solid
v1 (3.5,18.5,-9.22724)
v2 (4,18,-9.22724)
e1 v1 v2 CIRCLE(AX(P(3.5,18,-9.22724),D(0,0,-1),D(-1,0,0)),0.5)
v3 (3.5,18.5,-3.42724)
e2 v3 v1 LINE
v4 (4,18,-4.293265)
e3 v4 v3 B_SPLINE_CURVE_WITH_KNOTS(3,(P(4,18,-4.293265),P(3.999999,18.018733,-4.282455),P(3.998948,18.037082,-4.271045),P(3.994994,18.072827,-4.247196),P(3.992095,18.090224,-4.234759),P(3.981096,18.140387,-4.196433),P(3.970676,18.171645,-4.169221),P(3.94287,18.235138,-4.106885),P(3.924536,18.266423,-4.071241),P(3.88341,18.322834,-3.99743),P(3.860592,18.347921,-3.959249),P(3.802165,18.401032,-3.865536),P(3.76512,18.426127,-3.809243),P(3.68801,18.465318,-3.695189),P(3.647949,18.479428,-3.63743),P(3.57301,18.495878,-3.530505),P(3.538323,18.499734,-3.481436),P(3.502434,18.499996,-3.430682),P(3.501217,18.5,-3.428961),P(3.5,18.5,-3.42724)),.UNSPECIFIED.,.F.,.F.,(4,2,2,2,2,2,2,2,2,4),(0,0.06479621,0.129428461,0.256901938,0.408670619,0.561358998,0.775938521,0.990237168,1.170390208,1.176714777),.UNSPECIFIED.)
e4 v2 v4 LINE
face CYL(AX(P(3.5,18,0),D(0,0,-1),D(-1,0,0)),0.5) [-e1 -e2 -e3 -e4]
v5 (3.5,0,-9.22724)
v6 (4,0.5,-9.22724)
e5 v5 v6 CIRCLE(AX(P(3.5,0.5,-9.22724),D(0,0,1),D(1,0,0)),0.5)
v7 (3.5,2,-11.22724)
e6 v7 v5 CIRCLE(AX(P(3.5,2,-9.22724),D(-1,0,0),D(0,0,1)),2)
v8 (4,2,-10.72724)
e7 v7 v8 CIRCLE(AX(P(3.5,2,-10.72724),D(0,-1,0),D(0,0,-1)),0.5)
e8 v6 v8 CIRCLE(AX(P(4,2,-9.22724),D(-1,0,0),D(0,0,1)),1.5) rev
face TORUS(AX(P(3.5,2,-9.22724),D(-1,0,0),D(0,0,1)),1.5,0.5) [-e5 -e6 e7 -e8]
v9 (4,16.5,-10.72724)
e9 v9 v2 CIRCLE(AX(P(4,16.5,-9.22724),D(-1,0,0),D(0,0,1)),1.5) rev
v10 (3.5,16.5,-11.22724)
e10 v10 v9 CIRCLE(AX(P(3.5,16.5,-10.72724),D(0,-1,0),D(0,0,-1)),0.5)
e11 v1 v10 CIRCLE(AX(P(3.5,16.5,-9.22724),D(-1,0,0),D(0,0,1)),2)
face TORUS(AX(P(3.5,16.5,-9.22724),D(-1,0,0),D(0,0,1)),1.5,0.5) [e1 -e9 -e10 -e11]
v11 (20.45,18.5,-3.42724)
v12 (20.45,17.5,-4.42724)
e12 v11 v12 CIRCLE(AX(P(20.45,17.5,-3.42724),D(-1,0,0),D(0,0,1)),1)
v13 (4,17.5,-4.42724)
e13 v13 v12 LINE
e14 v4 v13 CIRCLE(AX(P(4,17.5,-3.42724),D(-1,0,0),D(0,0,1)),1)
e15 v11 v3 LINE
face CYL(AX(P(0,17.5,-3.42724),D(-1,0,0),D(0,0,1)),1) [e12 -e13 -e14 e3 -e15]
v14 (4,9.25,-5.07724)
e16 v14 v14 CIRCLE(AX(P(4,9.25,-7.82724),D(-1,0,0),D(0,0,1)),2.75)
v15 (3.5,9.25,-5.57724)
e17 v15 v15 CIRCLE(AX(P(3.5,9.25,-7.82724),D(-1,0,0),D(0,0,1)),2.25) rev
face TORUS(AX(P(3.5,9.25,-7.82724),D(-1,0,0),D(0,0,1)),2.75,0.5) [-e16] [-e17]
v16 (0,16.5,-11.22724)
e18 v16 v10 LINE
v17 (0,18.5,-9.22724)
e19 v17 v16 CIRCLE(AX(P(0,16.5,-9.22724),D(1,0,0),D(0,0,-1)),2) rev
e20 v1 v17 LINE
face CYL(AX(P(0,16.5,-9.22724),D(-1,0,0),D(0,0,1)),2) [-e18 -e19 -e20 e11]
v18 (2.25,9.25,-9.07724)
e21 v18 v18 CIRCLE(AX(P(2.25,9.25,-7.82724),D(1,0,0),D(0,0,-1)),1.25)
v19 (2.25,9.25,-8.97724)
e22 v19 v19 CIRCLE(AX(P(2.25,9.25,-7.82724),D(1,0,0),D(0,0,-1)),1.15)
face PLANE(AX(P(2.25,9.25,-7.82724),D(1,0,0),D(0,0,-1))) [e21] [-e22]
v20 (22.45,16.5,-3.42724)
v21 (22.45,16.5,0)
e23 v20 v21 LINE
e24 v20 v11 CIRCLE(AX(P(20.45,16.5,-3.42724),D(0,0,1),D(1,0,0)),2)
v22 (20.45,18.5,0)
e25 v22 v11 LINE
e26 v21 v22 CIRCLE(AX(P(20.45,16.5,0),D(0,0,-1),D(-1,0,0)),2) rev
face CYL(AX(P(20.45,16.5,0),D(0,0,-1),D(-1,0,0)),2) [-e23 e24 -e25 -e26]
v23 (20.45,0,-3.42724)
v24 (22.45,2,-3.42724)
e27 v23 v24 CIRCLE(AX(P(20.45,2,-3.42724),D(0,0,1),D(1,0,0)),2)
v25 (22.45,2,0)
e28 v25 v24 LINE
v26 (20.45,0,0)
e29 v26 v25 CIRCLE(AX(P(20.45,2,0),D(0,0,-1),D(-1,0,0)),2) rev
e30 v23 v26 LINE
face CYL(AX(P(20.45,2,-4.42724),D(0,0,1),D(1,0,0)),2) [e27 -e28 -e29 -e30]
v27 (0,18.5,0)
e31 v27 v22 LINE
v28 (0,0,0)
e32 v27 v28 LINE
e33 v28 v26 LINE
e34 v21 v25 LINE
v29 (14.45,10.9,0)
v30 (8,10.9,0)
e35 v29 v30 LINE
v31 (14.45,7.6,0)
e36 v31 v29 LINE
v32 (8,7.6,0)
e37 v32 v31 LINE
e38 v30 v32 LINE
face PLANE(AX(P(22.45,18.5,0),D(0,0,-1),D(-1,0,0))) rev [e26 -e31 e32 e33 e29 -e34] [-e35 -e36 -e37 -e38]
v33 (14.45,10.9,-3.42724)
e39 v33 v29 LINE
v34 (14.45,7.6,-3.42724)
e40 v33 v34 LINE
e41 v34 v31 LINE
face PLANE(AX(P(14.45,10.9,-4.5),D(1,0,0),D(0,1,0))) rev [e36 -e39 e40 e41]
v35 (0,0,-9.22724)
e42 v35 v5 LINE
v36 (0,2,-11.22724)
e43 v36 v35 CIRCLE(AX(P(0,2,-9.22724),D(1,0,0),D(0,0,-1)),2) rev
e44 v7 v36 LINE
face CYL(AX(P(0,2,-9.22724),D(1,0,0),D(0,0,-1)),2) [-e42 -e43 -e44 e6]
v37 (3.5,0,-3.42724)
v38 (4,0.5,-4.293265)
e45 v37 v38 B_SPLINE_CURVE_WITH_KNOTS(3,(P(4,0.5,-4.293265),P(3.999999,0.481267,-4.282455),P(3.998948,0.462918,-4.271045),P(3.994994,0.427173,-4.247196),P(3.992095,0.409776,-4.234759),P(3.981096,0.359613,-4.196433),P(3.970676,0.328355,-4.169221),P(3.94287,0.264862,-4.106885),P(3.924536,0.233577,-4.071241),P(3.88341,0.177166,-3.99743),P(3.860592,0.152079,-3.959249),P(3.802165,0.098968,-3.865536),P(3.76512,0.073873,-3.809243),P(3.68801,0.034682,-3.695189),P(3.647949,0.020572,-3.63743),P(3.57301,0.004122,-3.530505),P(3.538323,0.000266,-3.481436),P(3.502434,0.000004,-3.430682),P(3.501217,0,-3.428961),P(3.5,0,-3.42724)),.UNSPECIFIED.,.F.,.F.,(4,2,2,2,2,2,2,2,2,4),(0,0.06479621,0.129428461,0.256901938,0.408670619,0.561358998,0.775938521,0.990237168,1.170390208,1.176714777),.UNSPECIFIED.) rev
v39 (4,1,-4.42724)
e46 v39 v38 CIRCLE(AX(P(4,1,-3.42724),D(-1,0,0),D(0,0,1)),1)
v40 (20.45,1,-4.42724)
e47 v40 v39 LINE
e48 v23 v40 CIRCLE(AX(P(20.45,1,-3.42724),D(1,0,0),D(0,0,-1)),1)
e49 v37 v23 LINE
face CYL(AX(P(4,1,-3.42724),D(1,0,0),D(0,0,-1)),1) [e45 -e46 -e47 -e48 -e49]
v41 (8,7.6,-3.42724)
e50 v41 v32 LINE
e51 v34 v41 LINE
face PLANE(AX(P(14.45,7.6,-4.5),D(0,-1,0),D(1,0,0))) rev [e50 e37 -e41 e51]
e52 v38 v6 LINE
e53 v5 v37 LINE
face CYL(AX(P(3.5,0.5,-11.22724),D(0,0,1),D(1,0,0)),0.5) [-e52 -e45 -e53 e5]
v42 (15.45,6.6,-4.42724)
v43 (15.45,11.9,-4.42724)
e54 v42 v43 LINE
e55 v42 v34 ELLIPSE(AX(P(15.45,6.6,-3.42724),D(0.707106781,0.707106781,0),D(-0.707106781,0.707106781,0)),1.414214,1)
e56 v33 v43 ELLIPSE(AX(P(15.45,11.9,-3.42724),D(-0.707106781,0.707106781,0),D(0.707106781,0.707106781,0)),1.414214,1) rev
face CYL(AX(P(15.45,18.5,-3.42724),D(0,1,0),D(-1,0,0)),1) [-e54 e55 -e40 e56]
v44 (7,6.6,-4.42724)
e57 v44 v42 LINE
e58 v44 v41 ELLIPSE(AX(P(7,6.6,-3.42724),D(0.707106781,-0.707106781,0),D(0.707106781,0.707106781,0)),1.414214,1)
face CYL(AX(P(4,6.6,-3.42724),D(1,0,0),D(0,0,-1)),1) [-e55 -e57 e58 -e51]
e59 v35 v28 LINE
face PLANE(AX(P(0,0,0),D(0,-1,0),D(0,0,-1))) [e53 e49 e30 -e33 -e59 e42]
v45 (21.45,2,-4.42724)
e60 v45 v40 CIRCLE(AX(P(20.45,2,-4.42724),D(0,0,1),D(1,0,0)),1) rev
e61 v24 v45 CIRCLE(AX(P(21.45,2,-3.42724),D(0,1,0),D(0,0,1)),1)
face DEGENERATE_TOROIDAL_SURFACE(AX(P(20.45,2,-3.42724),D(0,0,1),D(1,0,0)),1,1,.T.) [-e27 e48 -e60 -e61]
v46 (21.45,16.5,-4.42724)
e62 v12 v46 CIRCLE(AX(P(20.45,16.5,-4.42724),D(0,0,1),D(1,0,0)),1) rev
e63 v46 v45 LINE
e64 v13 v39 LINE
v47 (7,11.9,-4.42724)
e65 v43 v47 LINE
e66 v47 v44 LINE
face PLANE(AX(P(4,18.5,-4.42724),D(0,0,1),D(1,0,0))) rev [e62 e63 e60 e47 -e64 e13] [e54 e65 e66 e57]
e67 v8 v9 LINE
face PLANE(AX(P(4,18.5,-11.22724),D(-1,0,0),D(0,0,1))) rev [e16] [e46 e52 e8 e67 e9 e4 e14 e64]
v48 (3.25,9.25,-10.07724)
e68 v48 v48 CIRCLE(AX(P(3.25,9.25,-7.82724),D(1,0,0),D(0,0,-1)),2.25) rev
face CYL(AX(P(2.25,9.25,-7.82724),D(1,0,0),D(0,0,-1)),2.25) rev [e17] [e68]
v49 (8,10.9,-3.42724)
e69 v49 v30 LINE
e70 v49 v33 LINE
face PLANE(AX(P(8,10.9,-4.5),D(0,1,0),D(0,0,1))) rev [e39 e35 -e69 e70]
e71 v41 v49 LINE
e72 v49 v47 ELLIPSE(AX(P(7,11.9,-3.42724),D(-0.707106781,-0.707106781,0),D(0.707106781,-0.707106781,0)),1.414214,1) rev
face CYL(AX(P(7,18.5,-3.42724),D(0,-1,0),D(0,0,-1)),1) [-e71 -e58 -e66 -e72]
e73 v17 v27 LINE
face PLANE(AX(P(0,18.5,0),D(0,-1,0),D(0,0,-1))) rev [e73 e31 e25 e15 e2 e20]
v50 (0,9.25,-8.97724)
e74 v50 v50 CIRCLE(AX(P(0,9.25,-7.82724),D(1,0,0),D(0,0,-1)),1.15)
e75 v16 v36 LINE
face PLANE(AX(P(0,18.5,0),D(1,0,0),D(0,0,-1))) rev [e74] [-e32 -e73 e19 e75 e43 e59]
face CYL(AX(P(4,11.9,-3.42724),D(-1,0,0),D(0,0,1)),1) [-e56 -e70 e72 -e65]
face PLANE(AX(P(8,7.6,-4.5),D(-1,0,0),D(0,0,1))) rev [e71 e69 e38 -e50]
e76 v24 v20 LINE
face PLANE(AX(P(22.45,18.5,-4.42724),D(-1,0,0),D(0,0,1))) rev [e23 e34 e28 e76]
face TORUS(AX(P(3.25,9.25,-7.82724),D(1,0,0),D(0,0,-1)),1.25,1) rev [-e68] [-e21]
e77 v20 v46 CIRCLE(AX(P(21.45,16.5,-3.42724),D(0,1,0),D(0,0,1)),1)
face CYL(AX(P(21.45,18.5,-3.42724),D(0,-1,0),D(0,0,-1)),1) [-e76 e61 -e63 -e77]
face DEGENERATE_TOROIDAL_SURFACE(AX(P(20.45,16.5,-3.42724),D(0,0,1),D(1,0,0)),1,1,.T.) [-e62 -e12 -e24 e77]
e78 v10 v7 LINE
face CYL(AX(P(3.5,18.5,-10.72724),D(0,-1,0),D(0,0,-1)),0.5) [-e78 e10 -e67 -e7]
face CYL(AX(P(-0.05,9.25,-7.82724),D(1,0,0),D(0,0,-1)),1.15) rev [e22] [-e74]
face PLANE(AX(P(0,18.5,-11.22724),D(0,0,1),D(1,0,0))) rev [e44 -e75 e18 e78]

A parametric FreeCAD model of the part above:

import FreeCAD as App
import Part
import Sketcher

V = App.Vector


def edges_at(feature, points):
    """Names of the edges that pass closest to the given points."""
    edges = feature.Shape.Edges
    near = lambda p: min(range(len(edges)), key=lambda i: edges[i].distToShape(Part.Vertex(*p))[0])
    return sorted({f"Edge{near(p) + 1}" for p in points})

doc = App.newDocument("Part")
body = doc.addObject("PartDesign::Body", "Body")

# Sketch on XZ plane
sketch1 = doc.addObject("Sketcher::SketchObject", "Sketch")
body.addObject(sketch1)
sketch1.AttachmentSupport = (doc.XZ_Plane, [""])
sketch1.MapMode = "FlatFace"
sketch1.addGeometry([
    Part.LineSegment(V(0, -11.2, 0), V(0, 0, 0)),  # 0
    Part.LineSegment(V(0, 0, 0), V(22.4, 0, 0)),  # 1
    Part.LineSegment(V(22.4, 0, 0), V(22.4, -4.4, 0)),  # 2
    Part.LineSegment(V(22.4, -4.4, 0), V(4, -4.4, 0)),  # 3
    Part.LineSegment(V(4, -4.4, 0), V(4, -11.2, 0)),  # 4
    Part.LineSegment(V(4, -11.2, 0), V(0, -11.2, 0)),  # 5
], False)
sketch1.addConstraint([
    Sketcher.Constraint("Coincident", 0, 2, 1, 1),
    Sketcher.Constraint("Coincident", 1, 2, 2, 1),
    Sketcher.Constraint("Coincident", 2, 2, 3, 1),
    Sketcher.Constraint("Coincident", 3, 2, 4, 1),
    Sketcher.Constraint("Coincident", 4, 2, 5, 1),
    Sketcher.Constraint("Coincident", 5, 2, 0, 1),
    Sketcher.Constraint("Vertical", 0),
    Sketcher.Constraint("Horizontal", 1),
    Sketcher.Constraint("Vertical", 2),
    Sketcher.Constraint("Horizontal", 3),
    Sketcher.Constraint("Vertical", 4),
    Sketcher.Constraint("Horizontal", 5),
    Sketcher.Constraint("Coincident", 0, 2, -1, 1),
    Sketcher.Constraint("DistanceX", 5, 2, 5, 1, 4.0),
    Sketcher.Constraint("DistanceY", 4, 2, 4, 1, 6.8),
    Sketcher.Constraint("DistanceX", 1, 1, 1, 2, 22.45),
    Sketcher.Constraint("DistanceY", 0, 1, 0, 2, 11.22724),
])
pad1 = doc.addObject("PartDesign::Pad", "Pad")
body.addObject(pad1)
pad1.Profile = sketch1
pad1.Length = 18.5
pad1.Reversed = True

# Sketch on XY plane
sketch2 = doc.addObject("Sketcher::SketchObject", "Sketch001")
body.addObject(sketch2)
sketch2.AttachmentSupport = (doc.XY_Plane, [""])
sketch2.MapMode = "FlatFace"
sketch2.addGeometry([
    Part.LineSegment(V(8, 10.9, 0), V(8, 7.6, 0)),
    Part.LineSegment(V(8, 7.6, 0), V(14.4, 7.6, 0)),
    Part.LineSegment(V(14.4, 7.6, 0), V(14.4, 10.9, 0)),
    Part.LineSegment(V(14.4, 10.9, 0), V(8, 10.9, 0)),
], False)
sketch2.addConstraint([
    Sketcher.Constraint("Coincident", 0, 2, 1, 1),
    Sketcher.Constraint("Coincident", 1, 2, 2, 1),
    Sketcher.Constraint("Coincident", 2, 2, 3, 1),
    Sketcher.Constraint("Coincident", 3, 2, 0, 1),
    Sketcher.Constraint("Vertical", 0),
    Sketcher.Constraint("Horizontal", 1),
    Sketcher.Constraint("Vertical", 2),
    Sketcher.Constraint("Horizontal", 3),
    Sketcher.Constraint("DistanceY", 0, 2, 0, 1, 3.3),
    Sketcher.Constraint("DistanceX", -1, 1, 0, 2, 8.0),
    Sketcher.Constraint("DistanceX", 1, 1, 1, 2, 6.45),
    Sketcher.Constraint("DistanceY", -1, 1, 0, 2, 7.6),
])
pocket1 = doc.addObject("PartDesign::Pocket", "Pocket")
body.addObject(pocket1)
pocket1.Profile = sketch2
pocket1.Length = 4.5

# Sketch on YZ plane
sketch3 = doc.addObject("Sketcher::SketchObject", "Sketch002")
body.addObject(sketch3)
sketch3.AttachmentSupport = (doc.YZ_Plane, [""])
sketch3.MapMode = "FlatFace"
sketch3.AttachmentOffset = App.Placement(V(0, 0, 4), App.Rotation())
sketch3.addGeometry(Part.Circle(V(9.2, -7.8, 0), V(0, 0, 1), 2.2), False)
sketch3.addConstraint([
    Sketcher.Constraint("Diameter", 0, 4.5),
    Sketcher.Constraint("DistanceX", -1, 1, 0, 3, 9.25),
    Sketcher.Constraint("DistanceY", 0, 3, -1, 1, 7.82724),
])
pocket2 = doc.addObject("PartDesign::Pocket", "Pocket001")
body.addObject(pocket2)
pocket2.Profile = sketch3
pocket2.Length = 1.75

# Sketch on YZ plane
sketch4 = doc.addObject("Sketcher::SketchObject", "Sketch003")
body.addObject(sketch4)
sketch4.AttachmentSupport = (doc.YZ_Plane, [""])
sketch4.MapMode = "FlatFace"
sketch4.AttachmentOffset = App.Placement(V(0, 0, 2.25), App.Rotation())
sketch4.addGeometry(Part.Circle(V(9.2, -7.8, 0), V(0, 0, 1), 1.1), False)
sketch4.addConstraint([
    Sketcher.Constraint("Diameter", 0, 2.3),
    Sketcher.Constraint("DistanceX", -1, 1, 0, 3, 9.25),
    Sketcher.Constraint("DistanceY", 0, 3, -1, 1, 7.82724),
])
pocket3 = doc.addObject("PartDesign::Pocket", "Pocket002")
body.addObject(pocket3)
pocket3.Profile = sketch4
pocket3.Length = 2.3
doc.recompute()

fillet = doc.addObject("PartDesign::Fillet", "Fillet")
body.addObject(fillet)
fillet.Base = (pocket3, edges_at(pocket3, [(2, 18.5, -11.227)]))
fillet.Radius = 2
doc.recompute()

fillet2 = doc.addObject("PartDesign::Fillet", "Fillet001")
body.addObject(fillet2)
fillet2.Base = (fillet, edges_at(fillet, [(2, 0, -11.227)]))
fillet2.Radius = 2
doc.recompute()

fillet3 = doc.addObject("PartDesign::Fillet", "Fillet002")
body.addObject(fillet3)
fillet3.Base = (fillet2, edges_at(fillet2, [(22.45, 0, -2.214)]))
fillet3.Radius = 2
doc.recompute()

fillet4 = doc.addObject("PartDesign::Fillet", "Fillet003")
body.addObject(fillet4)
fillet4.Base = (fillet3, edges_at(fillet3, [(22.45, 18.5, -2.214)]))
fillet4.Radius = 2
doc.recompute()

fillet5 = doc.addObject("PartDesign::Fillet", "Fillet004")
body.addObject(fillet5)
fillet5.Base = (fillet4, edges_at(fillet4, [
    (11.225, 10.9, -4.427),
    (8, 9.25, -4.427),
    (11.225, 7.6, -4.427),
    (14.45, 9.25, -4.427),
]))
fillet5.Radius = 1
doc.recompute()

fillet6 = doc.addObject("PartDesign::Fillet", "Fillet005")
body.addObject(fillet6)
fillet6.Base = (fillet5, edges_at(fillet5, [(4, 9.25, -5.577)]))
fillet6.Radius = 0.5
doc.recompute()

fillet7 = doc.addObject("PartDesign::Fillet", "Fillet006")
body.addObject(fillet7)
fillet7.Base = (fillet6, edges_at(fillet6, [(2.25, 9.25, -5.577)]))
fillet7.Radius = 1
doc.recompute()

fillet8 = doc.addObject("PartDesign::Fillet", "Fillet007")
body.addObject(fillet8)
fillet8.Base = (fillet7, edges_at(fillet7, [
    (12.225, 0, -4.427),
    (21.864, 0.586, -4.427),
    (12.225, 18.5, -4.427),
    (22.45, 9.25, -4.427),
    (21.864, 17.914, -4.427),
]))
fillet8.Radius = 1
doc.recompute()

fillet9 = doc.addObject("PartDesign::Fillet", "Fillet008")
body.addObject(fillet9)
fillet9.Base = (fillet8, edges_at(fillet8, [
    (4, 18.5, -6.327),
    (4, 9.25, -11.227),
    (4, 17.914, -10.641),
    (4, 0.586, -10.641),
    (4, 0, -6.327),
]))
fillet9.Radius = 0.5

doc.recompute()
